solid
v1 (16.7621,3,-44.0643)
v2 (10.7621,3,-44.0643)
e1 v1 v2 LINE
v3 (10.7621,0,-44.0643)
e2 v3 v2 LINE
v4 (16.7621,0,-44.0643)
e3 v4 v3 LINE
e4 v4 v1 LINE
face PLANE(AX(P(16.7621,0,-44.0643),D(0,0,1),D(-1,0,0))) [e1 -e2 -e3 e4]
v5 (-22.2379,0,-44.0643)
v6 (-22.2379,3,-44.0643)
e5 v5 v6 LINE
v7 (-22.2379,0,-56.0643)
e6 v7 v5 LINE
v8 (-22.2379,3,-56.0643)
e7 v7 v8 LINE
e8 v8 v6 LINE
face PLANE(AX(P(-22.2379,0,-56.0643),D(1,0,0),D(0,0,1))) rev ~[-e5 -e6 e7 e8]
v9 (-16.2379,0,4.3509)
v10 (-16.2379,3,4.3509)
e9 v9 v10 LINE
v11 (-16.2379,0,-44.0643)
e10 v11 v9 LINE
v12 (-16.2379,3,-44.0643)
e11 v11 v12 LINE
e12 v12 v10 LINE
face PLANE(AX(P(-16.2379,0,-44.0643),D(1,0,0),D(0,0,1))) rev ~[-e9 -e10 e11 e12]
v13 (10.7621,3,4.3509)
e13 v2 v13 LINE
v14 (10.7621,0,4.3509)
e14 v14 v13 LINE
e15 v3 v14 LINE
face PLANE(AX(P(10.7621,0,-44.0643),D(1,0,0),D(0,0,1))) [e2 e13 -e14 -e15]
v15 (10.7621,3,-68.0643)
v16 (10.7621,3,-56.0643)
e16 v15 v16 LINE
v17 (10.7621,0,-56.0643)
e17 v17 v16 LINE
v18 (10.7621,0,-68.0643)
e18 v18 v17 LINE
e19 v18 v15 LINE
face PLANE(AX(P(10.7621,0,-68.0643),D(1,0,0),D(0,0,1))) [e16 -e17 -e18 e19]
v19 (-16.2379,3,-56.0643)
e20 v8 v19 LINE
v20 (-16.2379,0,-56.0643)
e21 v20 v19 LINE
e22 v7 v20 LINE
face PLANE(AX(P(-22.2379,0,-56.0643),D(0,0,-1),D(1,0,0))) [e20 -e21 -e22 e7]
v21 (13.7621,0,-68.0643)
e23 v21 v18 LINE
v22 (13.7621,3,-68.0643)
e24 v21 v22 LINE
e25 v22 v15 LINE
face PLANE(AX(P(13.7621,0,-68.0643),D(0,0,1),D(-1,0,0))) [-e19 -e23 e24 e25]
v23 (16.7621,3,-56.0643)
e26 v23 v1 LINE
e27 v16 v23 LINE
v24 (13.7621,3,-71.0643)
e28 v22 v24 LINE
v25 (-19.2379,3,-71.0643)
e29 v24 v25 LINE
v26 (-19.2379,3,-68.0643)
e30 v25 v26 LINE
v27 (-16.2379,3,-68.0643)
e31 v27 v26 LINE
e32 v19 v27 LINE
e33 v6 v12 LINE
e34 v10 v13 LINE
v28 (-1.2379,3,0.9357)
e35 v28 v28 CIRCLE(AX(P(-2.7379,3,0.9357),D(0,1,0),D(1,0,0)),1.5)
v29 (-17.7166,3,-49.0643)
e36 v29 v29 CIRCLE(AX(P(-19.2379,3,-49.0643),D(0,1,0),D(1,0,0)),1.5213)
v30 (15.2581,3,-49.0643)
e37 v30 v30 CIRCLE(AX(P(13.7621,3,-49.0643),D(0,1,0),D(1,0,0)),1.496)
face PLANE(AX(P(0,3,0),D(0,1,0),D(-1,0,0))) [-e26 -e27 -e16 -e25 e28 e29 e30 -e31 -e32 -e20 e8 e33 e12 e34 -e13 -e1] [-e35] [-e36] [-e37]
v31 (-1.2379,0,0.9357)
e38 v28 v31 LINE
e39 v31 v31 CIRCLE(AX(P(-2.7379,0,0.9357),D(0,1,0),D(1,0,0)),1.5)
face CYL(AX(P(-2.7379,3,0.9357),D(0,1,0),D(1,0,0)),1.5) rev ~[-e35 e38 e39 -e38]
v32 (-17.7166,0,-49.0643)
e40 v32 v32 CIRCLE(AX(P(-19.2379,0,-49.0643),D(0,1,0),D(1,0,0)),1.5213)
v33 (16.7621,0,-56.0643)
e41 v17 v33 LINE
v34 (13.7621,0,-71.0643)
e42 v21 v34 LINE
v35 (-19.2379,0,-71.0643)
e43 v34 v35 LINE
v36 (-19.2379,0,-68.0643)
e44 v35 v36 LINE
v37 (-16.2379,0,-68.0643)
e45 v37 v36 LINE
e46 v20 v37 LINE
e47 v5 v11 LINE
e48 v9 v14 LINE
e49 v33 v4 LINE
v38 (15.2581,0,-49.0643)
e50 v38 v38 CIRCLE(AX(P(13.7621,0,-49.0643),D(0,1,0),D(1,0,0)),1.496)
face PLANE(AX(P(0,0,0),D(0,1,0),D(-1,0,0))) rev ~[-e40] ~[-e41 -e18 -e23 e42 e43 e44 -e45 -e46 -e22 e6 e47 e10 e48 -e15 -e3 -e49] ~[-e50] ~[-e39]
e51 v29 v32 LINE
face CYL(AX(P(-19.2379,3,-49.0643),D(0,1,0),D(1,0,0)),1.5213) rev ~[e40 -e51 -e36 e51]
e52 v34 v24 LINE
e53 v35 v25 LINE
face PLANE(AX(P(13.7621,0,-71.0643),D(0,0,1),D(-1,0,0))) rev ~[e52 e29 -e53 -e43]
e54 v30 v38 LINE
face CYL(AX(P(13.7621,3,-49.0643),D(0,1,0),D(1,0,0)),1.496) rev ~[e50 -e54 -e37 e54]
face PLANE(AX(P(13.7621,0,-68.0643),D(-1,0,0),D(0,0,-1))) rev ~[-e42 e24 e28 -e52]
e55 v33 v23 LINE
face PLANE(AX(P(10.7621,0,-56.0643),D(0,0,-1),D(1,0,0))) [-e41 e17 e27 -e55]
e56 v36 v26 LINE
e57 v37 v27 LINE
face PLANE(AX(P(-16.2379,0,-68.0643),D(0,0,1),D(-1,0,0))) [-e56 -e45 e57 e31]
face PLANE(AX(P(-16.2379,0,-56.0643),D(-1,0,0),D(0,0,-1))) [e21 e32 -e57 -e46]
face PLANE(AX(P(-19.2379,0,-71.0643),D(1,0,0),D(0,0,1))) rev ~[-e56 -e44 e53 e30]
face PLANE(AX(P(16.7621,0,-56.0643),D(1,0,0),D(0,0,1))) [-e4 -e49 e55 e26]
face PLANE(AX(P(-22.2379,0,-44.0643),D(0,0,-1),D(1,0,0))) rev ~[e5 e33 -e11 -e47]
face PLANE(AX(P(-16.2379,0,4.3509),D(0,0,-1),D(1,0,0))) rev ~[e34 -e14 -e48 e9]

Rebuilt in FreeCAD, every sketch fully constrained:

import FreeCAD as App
import Part
import Sketcher
Q = App.Units.Quantity

doc = App.newDocument("Part")
body = doc.addObject("PartDesign::Body", "Body")

# Sketch on XZ plane
sketch1 = body.newObject("Sketcher::SketchObject", "Sketch")
sketch1.AttachmentSupport = (doc.getObject("XZ_Plane"), [""])
sketch1.MapMode = "FlatFace"
sketch1.addGeometry(Part.LineSegment(App.Vector(-16.2, -44.1, 0), App.Vector(-16.2, 4.4, 0)), False)
sketch1.addGeometry(Part.LineSegment(App.Vector(-16.2, 4.4, 0), App.Vector(10.8, 4.4, 0)), False)
sketch1.addGeometry(Part.LineSegment(App.Vector(10.8, 4.4, 0), App.Vector(10.8, -44.1, 0)), False)
sketch1.addGeometry(Part.LineSegment(App.Vector(10.8, -44.1, 0), App.Vector(16.8, -44.1, 0)), False)
sketch1.addGeometry(Part.LineSegment(App.Vector(16.8, -44.1, 0), App.Vector(16.8, -56.1, 0)), False)
sketch1.addGeometry(Part.LineSegment(App.Vector(16.8, -56.1, 0), App.Vector(10.8, -56.1, 0)), False)
sketch1.addGeometry(Part.LineSegment(App.Vector(10.8, -56.1, 0), App.Vector(10.8, -68.1, 0)), False)
sketch1.addGeometry(Part.LineSegment(App.Vector(10.8, -68.1, 0), App.Vector(13.8, -68.1, 0)), False)
sketch1.addGeometry(Part.LineSegment(App.Vector(13.8, -68.1, 0), App.Vector(13.8, -71.1, 0)), False)
sketch1.addGeometry(Part.LineSegment(App.Vector(13.8, -71.1, 0), App.Vector(-19.2, -71.1, 0)), False)
sketch1.addGeometry(Part.LineSegment(App.Vector(-19.2, -71.1, 0), App.Vector(-19.2, -68.1, 0)), False)
sketch1.addGeometry(Part.LineSegment(App.Vector(-19.2, -68.1, 0), App.Vector(-16.2, -68.1, 0)), False)
sketch1.addGeometry(Part.LineSegment(App.Vector(-16.2, -68.1, 0), App.Vector(-16.2, -56.1, 0)), False)
sketch1.addGeometry(Part.LineSegment(App.Vector(-16.2, -56.1, 0), App.Vector(-22.2, -56.1, 0)), False)
sketch1.addGeometry(Part.LineSegment(App.Vector(-22.2, -56.1, 0), App.Vector(-22.2, -44.1, 0)), False)
sketch1.addGeometry(Part.LineSegment(App.Vector(-22.2, -44.1, 0), App.Vector(-16.2, -44.1, 0)), False)
sketch1.addConstraint(Sketcher.Constraint("Coincident", 0, 2, 1, 1))
sketch1.addConstraint(Sketcher.Constraint("Coincident", 1, 2, 2, 1))
sketch1.addConstraint(Sketcher.Constraint("Coincident", 2, 2, 3, 1))
sketch1.addConstraint(Sketcher.Constraint("Coincident", 3, 2, 4, 1))
sketch1.addConstraint(Sketcher.Constraint("Coincident", 4, 2, 5, 1))
sketch1.addConstraint(Sketcher.Constraint("Coincident", 5, 2, 6, 1))
sketch1.addConstraint(Sketcher.Constraint("Coincident", 6, 2, 7, 1))
sketch1.addConstraint(Sketcher.Constraint("Coincident", 7, 2, 8, 1))
sketch1.addConstraint(Sketcher.Constraint("Coincident", 8, 2, 9, 1))
sketch1.addConstraint(Sketcher.Constraint("Coincident", 9, 2, 10, 1))
sketch1.addConstraint(Sketcher.Constraint("Coincident", 10, 2, 11, 1))
sketch1.addConstraint(Sketcher.Constraint("Coincident", 11, 2, 12, 1))
sketch1.addConstraint(Sketcher.Constraint("Coincident", 12, 2, 13, 1))
sketch1.addConstraint(Sketcher.Constraint("Coincident", 13, 2, 14, 1))
sketch1.addConstraint(Sketcher.Constraint("Coincident", 14, 2, 15, 1))
sketch1.addConstraint(Sketcher.Constraint("Coincident", 15, 2, 0, 1))
sketch1.addConstraint(Sketcher.Constraint("Vertical", 0))
sketch1.addConstraint(Sketcher.Constraint("Horizontal", 1))
sketch1.addConstraint(Sketcher.Constraint("Vertical", 2))
sketch1.addConstraint(Sketcher.Constraint("Horizontal", 3))
sketch1.addConstraint(Sketcher.Constraint("Vertical", 4))
sketch1.addConstraint(Sketcher.Constraint("Horizontal", 5))
sketch1.addConstraint(Sketcher.Constraint("Vertical", 6))
sketch1.addConstraint(Sketcher.Constraint("Horizontal", 7))
sketch1.addConstraint(Sketcher.Constraint("Vertical", 8))
sketch1.addConstraint(Sketcher.Constraint("Horizontal", 9))
sketch1.addConstraint(Sketcher.Constraint("Vertical", 10))
sketch1.addConstraint(Sketcher.Constraint("Horizontal", 11))
sketch1.addConstraint(Sketcher.Constraint("Vertical", 12))
sketch1.addConstraint(Sketcher.Constraint("Horizontal", 13))
sketch1.addConstraint(Sketcher.Constraint("Vertical", 14))
sketch1.addConstraint(Sketcher.Constraint("Horizontal", 15))
sketch1.addConstraint(Sketcher.Constraint("Horizontal", 7, 2, 10, 2))
sketch1.addConstraint(Sketcher.Constraint("Horizontal", 5, 2, 12, 2))
sketch1.addConstraint(Sketcher.Constraint("Horizontal", 3, 2, 14, 2))
sketch1.addConstraint(Sketcher.Constraint("Vertical", 2, 2, 5, 2))
sketch1.addConstraint(Sketcher.Constraint("Vertical", 0, 2, 11, 2))
sketch1.addConstraint(Sketcher.Constraint("Equal", 7, 11))
sketch1.addConstraint(Sketcher.Constraint("Equal", 5, 13))
sketch1.addConstraint(Sketcher.Constraint("Equal", 4, 6))
sketch1.addConstraint(Sketcher.Constraint("Equal", 11, 8))
sketch1.addConstraint(Sketcher.Constraint("DistanceX", 3, 1, 3, 2, Q("6 mm")))
sketch1.addConstraint(Sketcher.Constraint("DistanceX", 7, 1, 7, 2, Q("3 mm")))
sketch1.addConstraint(Sketcher.Constraint("DistanceX", 9, 2, 9, 1, Q("33 mm")))
sketch1.addConstraint(Sketcher.Constraint("DistanceY", 4, 2, 4, 1, Q("12 mm")))
sketch1.addConstraint(Sketcher.Constraint("DistanceY", 4, 2, 1, 2, Q("60.4152 mm")))
sketch1.addConstraint(Sketcher.Constraint("DistanceX", 0, 2, -1, 1, Q("16.238 mm")))
sketch1.addConstraint(Sketcher.Constraint("DistanceY", -1, 1, 0, 2, Q("4.351 mm")))
pad1 = body.newObject("PartDesign::Pad", "Pad")
pad1.Profile = sketch1
pad1.Length = 3
pad1.Reversed = True

# Sketch on XZ plane
sketch2 = body.newObject("Sketcher::SketchObject", "Sketch001")
sketch2.AttachmentSupport = (doc.getObject("XZ_Plane"), [""])
sketch2.MapMode = "FlatFace"
sketch2.AttachmentOffset = App.Placement(App.Vector(0, 0, -3), App.Rotation())
sketch2.addGeometry(Part.Circle(App.Vector(13.8, -49.1, 0), App.Vector(0, 0, 1), 1.5), False)
sketch2.addGeometry(Part.Circle(App.Vector(-19.2, -49.1, 0), App.Vector(0, 0, 1), 1.5), False)
sketch2.addGeometry(Part.Circle(App.Vector(-2.7, 0.9, 0), App.Vector(0, 0, 1), 1.5), False)
sketch2.addConstraint(Sketcher.Constraint("Horizontal", 0, 3, 1, 3))
sketch2.addConstraint(Sketcher.Constraint("Diameter", 2, Q("3 mm")))
sketch2.addConstraint(Sketcher.Constraint("Diameter", 0, Q("2.992 mm")))
sketch2.addConstraint(Sketcher.Constraint("DistanceX", 1, 3, 0, 3, Q("33 mm")))
sketch2.addConstraint(Sketcher.Constraint("DistanceY", 0, 3, 2, 3, Q("50 mm")))
sketch2.addConstraint(Sketcher.Constraint("Diameter", 1, Q("3.0426 mm")))
sketch2.addConstraint(Sketcher.Constraint("DistanceX", 2, 3, 0, 3, Q("16.5 mm")))
sketch2.addConstraint(Sketcher.Constraint("DistanceX", -1, 1, 0, 3, Q("13.762 mm")))
sketch2.addConstraint(Sketcher.Constraint("DistanceY", 0, 3, -1, 1, Q("49.0643 mm")))
pocket1 = body.newObject("PartDesign::Pocket", "Pocket")
pocket1.Profile = sketch2
pocket1.Type = "ThroughAll"
pocket1.Reversed = True

doc.recompute()
